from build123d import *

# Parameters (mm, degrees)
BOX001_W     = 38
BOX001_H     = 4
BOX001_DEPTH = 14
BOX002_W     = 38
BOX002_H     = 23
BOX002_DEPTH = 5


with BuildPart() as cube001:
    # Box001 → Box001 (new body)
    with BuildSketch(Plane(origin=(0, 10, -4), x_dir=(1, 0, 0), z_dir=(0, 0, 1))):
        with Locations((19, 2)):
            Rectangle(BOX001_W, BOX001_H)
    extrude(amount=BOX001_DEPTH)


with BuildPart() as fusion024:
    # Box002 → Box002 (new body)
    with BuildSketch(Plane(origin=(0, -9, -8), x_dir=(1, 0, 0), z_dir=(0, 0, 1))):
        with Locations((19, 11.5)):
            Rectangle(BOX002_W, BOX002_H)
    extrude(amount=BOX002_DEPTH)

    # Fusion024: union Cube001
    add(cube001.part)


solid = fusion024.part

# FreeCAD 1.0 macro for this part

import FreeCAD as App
import Part
import Sketcher

V = App.Vector


def add_polygon(sketch, points):
    """Adds a closed chain of lines whose ends are joined by coincident constraints."""
    first, n = sketch.GeometryCount, len(points)
    for a, b in zip(points, points[1:] + points[:1]):
        sketch.addGeometry(Part.LineSegment(App.Vector(*a, 0), App.Vector(*b, 0)), False)
    for i in range(n):
        sketch.addConstraint(Sketcher.Constraint("Coincident", first + i, 2, first + (i + 1) % n, 1))

doc = App.newDocument("Part")
body = doc.addObject("PartDesign::Body", "Body")

sketch1 = body.newObject("Sketcher::SketchObject", "Sketch")
sketch1.AttachmentSupport = (doc.getObject("XY_Plane"), [""])
sketch1.MapMode = "FlatFace"
sketch1.AttachmentOffset = App.Placement(V(0, 0, -4), App.Rotation())
add_polygon(sketch1, [(0, 14), (0, 10), (38, 10), (38, 14)])
sketch1.addConstraint([
    Sketcher.Constraint("Vertical", 0),
    Sketcher.Constraint("Horizontal", 1),
    Sketcher.Constraint("Vertical", 2),
    Sketcher.Constraint("Horizontal", 3),
    Sketcher.Constraint("PointOnObject", 0, 2, -2),
    Sketcher.Constraint("DistanceX", 1, 1, 1, 2, 38.0),
    Sketcher.Constraint("DistanceY", 0, 2, 0, 1, 4.0),
    Sketcher.Constraint("DistanceY", -1, 1, 0, 2, 10.0),
])
pad1 = body.newObject("PartDesign::Pad", "Pad")
pad1.Profile = sketch1
pad1.Length = 14
body2 = doc.addObject("PartDesign::Body", "Body001")

sketch2 = body2.newObject("Sketcher::SketchObject", "Sketch001")
sketch2.AttachmentSupport = (doc.getObject("XY_Plane001"), [""])
sketch2.MapMode = "FlatFace"
sketch2.AttachmentOffset = App.Placement(V(0, 0, -8), App.Rotation())
add_polygon(sketch2, [(0, 14), (0, -9), (38, -9), (38, 14)])
sketch2.addConstraint([
    Sketcher.Constraint("Vertical", 0),
    Sketcher.Constraint("Horizontal", 1),
    Sketcher.Constraint("Vertical", 2),
    Sketcher.Constraint("Horizontal", 3),
    Sketcher.Constraint("PointOnObject", 0, 2, -2),
    Sketcher.Constraint("DistanceX", 1, 1, 1, 2, 38.0),
    Sketcher.Constraint("DistanceY", 0, 2, 0, 1, 23.0),
    Sketcher.Constraint("DistanceY", 0, 2, -1, 1, 9.0),
])
pad2 = body2.newObject("PartDesign::Pad", "Pad001")
pad2.Profile = sketch2
pad2.Length = 5
doc.recompute()

boolean = body2.newObject("PartDesign::Boolean", "Boolean")
boolean.Type = "Fuse"
boolean.addObjects([body])

doc.recompute()
